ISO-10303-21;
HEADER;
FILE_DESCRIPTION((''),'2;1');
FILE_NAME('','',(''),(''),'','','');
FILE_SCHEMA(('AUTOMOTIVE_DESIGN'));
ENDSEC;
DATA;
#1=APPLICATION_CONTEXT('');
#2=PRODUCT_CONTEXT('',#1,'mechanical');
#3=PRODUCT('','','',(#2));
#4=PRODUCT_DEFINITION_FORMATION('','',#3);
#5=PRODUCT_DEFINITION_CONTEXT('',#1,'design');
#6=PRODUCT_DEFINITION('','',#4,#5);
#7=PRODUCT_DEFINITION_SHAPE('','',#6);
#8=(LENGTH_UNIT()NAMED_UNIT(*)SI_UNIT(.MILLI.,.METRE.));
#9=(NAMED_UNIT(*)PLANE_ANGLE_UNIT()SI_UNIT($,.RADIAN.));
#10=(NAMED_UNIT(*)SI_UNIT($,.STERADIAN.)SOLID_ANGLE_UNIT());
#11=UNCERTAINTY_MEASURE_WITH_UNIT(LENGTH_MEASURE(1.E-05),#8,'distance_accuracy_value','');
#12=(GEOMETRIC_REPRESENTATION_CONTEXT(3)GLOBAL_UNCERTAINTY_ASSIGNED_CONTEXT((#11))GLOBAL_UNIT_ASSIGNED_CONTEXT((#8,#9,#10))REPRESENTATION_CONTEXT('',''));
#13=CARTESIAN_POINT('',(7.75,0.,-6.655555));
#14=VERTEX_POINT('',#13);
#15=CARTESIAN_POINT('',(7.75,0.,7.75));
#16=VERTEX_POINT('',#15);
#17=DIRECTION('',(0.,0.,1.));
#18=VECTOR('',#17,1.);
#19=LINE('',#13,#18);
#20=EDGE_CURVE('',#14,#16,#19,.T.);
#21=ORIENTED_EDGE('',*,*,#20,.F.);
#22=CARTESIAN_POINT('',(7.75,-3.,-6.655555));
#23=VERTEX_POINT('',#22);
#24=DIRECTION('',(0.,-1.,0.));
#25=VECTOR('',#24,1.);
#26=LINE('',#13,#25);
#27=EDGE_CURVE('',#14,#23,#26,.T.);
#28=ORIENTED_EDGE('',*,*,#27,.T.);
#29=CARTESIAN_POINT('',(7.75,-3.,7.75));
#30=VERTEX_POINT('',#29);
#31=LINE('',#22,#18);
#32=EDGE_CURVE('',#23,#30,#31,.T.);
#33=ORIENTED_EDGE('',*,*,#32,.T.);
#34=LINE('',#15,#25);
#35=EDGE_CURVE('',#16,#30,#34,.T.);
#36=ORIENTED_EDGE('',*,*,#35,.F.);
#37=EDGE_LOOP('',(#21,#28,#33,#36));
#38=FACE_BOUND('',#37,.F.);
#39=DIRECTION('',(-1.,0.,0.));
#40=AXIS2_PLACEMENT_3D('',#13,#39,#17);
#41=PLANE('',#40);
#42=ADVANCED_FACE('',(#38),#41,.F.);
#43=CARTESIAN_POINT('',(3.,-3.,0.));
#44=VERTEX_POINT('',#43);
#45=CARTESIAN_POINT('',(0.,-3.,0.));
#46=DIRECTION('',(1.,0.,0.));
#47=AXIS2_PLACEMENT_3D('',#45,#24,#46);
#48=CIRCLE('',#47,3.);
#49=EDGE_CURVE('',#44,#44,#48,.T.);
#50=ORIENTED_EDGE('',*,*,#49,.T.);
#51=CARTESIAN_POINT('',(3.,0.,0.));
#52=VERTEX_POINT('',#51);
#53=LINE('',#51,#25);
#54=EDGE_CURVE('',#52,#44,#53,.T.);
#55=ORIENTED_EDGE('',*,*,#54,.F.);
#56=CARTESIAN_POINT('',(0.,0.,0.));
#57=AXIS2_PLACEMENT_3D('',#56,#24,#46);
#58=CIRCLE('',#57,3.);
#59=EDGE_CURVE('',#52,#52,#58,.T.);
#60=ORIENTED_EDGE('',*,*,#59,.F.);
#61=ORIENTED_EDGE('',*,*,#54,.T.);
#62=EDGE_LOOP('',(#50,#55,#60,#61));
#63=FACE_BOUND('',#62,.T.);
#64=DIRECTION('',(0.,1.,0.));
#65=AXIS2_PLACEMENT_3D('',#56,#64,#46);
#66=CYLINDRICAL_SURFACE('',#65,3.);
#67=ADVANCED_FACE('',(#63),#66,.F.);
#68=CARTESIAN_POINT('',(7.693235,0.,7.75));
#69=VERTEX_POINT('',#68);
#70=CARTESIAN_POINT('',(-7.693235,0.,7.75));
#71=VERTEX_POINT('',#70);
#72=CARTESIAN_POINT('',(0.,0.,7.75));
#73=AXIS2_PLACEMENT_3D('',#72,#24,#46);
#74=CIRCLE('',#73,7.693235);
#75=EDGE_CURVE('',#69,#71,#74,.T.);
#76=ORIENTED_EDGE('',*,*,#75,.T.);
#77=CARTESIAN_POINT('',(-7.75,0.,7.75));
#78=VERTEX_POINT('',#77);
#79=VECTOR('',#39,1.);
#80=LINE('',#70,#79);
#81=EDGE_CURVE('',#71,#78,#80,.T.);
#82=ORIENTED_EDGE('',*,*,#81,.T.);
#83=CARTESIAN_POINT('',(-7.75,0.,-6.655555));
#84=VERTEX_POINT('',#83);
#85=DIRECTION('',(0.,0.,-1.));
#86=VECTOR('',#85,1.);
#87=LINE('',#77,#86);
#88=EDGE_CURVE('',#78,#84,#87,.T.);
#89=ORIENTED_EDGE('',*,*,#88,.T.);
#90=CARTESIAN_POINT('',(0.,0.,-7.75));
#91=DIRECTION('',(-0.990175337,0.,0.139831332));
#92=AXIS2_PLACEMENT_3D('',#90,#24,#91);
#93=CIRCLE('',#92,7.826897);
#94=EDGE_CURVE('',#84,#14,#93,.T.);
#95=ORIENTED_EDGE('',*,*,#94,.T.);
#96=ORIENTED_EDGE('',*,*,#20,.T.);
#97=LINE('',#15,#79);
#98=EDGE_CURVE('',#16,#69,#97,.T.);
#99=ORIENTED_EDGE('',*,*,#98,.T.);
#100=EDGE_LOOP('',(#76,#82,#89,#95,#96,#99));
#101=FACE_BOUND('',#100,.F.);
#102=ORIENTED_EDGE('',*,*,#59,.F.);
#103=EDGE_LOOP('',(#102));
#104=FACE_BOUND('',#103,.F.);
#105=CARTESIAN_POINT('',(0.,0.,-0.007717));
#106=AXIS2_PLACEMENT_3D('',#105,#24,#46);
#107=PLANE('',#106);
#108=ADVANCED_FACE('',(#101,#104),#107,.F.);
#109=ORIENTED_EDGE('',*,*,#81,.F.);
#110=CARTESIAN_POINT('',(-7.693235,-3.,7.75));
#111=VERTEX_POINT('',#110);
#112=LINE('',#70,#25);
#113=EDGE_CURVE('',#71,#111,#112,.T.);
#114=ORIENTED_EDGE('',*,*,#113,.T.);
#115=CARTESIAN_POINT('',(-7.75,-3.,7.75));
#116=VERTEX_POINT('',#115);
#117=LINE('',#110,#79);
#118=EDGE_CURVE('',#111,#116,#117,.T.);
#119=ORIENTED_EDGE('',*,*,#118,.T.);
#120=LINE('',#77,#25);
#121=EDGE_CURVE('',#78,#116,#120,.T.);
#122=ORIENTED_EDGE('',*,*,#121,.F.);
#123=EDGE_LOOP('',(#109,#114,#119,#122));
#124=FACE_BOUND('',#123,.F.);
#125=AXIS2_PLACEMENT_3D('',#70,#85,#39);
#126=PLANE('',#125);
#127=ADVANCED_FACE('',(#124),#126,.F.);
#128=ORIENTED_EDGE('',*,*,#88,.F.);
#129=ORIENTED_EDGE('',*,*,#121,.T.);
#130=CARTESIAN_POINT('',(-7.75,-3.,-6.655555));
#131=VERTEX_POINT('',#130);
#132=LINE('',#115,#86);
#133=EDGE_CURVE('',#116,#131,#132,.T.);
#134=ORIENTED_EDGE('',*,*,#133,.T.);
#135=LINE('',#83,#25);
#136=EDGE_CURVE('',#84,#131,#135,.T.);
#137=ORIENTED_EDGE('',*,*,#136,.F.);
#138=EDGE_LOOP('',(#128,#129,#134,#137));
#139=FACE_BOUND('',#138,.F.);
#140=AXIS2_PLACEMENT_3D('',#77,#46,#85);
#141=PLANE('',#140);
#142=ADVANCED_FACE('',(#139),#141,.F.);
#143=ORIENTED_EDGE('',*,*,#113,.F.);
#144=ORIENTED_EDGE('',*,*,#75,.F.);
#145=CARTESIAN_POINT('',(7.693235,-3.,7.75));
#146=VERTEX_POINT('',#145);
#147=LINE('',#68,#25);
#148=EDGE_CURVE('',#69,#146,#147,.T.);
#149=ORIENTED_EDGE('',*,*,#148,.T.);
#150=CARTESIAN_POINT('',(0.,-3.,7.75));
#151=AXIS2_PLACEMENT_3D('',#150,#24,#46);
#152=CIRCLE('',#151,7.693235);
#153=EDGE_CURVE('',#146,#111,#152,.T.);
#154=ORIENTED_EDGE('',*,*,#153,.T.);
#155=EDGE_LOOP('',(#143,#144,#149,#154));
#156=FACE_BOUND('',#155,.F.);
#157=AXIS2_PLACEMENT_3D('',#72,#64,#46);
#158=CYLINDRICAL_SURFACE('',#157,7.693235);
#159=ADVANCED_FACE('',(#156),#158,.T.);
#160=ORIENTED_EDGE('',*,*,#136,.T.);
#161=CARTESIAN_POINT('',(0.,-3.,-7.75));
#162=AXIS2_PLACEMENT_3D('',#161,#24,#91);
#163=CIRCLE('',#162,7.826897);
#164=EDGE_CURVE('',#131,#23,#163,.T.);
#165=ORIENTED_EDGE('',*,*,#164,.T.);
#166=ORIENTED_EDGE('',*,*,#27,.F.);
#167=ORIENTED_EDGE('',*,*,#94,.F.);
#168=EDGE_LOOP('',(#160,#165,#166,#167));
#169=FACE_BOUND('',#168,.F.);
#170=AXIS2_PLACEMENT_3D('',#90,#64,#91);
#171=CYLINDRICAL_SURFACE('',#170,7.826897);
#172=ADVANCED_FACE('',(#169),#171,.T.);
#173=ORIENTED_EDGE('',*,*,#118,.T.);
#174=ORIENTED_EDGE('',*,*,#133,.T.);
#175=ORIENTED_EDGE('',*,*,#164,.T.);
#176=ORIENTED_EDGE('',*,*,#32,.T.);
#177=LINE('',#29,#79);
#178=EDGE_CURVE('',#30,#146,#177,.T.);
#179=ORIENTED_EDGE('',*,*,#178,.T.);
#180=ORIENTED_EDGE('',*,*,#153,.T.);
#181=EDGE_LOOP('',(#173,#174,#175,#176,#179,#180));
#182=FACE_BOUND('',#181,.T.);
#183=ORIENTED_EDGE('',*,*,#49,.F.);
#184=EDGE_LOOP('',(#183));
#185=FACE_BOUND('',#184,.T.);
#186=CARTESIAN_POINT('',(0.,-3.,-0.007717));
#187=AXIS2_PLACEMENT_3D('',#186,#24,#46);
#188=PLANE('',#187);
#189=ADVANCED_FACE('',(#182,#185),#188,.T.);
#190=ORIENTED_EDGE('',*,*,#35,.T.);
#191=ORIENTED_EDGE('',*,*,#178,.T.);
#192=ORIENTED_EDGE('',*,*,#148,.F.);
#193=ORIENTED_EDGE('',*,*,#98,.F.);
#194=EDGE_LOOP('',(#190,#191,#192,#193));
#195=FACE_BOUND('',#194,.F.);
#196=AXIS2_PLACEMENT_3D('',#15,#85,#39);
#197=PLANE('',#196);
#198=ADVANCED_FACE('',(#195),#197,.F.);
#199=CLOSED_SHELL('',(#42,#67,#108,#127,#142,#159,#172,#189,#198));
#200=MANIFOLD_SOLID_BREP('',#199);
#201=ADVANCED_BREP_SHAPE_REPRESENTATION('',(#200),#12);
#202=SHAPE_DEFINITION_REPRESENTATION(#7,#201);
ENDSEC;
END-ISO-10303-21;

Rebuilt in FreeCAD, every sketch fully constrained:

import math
import FreeCAD as App
import Part
import Sketcher

V = App.Vector

doc = App.newDocument("Part")
body = doc.addObject("PartDesign::Body", "Body")

sketch1 = body.newObject("Sketcher::SketchObject", "Sketch")
sketch1.AttachmentSupport = (doc.getObject("XZ_Plane"), [""])
sketch1.MapMode = "FlatFace"
sketch1.addGeometry(Part.LineSegment(V(7.75, -6.66, 0), V(7.75, 7.75, 0)), False)
sketch1.addGeometry(Part.LineSegment(V(7.75, 7.75, 0), V(7.69, 7.75, 0)), False)
sketch1.addGeometry(Part.ArcOfCircle(Part.Circle(V(0, 7.75, 0), V(0, 0, 1), 7.69), math.radians(0), math.radians(180)), False)
sketch1.addGeometry(Part.LineSegment(V(-7.69, 7.75, 0), V(-7.75, 7.75, 0)), False)
sketch1.addGeometry(Part.LineSegment(V(-7.75, 7.75, 0), V(-7.75, -6.66, 0)), False)
sketch1.addGeometry(Part.ArcOfCircle(Part.Circle(V(0, -7.75, 0), V(0, 0, 1), 7.83), math.radians(172), math.radians(368)), False)
sketch1.addGeometry(Part.Circle(V(0, 0, 0), V(0, 0, 1), 3), False)
sketch1.addConstraint(Sketcher.Constraint("Coincident", 0, 2, 1, 1))
sketch1.addConstraint(Sketcher.Constraint("Coincident", 1, 2, 2, 1))
sketch1.addConstraint(Sketcher.Constraint("Coincident", 2, 2, 3, 1))
sketch1.addConstraint(Sketcher.Constraint("Coincident", 3, 2, 4, 1))
sketch1.addConstraint(Sketcher.Constraint("Coincident", 4, 2, 5, 1))
sketch1.addConstraint(Sketcher.Constraint("Coincident", 5, 2, 0, 1))
sketch1.addConstraint(Sketcher.Constraint("Vertical", 0))
sketch1.addConstraint(Sketcher.Constraint("Horizontal", 1))
sketch1.addConstraint(Sketcher.Constraint("Horizontal", 3))
sketch1.addConstraint(Sketcher.Constraint("Vertical", 4))
sketch1.addConstraint(Sketcher.Constraint("Coincident", 6, 3, -1, 1))
sketch1.addConstraint(Sketcher.Constraint("Symmetric", 2, 3, 5, 3, -1, 1))
sketch1.addConstraint(Sketcher.Constraint("Symmetric", 1, 2, 2, 2, -2))
sketch1.addConstraint(Sketcher.Constraint("Horizontal", 2, 3, 0, 2))
sketch1.addConstraint(Sketcher.Constraint("Horizontal", 4, 2, 5, 2))
sketch1.addConstraint(Sketcher.Constraint("Diameter", 6, 6.0))
sketch1.addConstraint(Sketcher.Constraint("DistanceY", 5, 3, 2, 3, 15.5))
sketch1.addConstraint(Sketcher.Constraint("DistanceX", 3, 2, 0, 2, 15.5))
sketch1.addConstraint(Sketcher.Constraint("Radius", 2, 7.693235))
sketch1.addConstraint(Sketcher.Constraint("Radius", 5, 7.826897))
pad1 = body.newObject("PartDesign::Pad", "Pad")
pad1.Profile = sketch1
pad1.Length = 3

doc.recompute()
